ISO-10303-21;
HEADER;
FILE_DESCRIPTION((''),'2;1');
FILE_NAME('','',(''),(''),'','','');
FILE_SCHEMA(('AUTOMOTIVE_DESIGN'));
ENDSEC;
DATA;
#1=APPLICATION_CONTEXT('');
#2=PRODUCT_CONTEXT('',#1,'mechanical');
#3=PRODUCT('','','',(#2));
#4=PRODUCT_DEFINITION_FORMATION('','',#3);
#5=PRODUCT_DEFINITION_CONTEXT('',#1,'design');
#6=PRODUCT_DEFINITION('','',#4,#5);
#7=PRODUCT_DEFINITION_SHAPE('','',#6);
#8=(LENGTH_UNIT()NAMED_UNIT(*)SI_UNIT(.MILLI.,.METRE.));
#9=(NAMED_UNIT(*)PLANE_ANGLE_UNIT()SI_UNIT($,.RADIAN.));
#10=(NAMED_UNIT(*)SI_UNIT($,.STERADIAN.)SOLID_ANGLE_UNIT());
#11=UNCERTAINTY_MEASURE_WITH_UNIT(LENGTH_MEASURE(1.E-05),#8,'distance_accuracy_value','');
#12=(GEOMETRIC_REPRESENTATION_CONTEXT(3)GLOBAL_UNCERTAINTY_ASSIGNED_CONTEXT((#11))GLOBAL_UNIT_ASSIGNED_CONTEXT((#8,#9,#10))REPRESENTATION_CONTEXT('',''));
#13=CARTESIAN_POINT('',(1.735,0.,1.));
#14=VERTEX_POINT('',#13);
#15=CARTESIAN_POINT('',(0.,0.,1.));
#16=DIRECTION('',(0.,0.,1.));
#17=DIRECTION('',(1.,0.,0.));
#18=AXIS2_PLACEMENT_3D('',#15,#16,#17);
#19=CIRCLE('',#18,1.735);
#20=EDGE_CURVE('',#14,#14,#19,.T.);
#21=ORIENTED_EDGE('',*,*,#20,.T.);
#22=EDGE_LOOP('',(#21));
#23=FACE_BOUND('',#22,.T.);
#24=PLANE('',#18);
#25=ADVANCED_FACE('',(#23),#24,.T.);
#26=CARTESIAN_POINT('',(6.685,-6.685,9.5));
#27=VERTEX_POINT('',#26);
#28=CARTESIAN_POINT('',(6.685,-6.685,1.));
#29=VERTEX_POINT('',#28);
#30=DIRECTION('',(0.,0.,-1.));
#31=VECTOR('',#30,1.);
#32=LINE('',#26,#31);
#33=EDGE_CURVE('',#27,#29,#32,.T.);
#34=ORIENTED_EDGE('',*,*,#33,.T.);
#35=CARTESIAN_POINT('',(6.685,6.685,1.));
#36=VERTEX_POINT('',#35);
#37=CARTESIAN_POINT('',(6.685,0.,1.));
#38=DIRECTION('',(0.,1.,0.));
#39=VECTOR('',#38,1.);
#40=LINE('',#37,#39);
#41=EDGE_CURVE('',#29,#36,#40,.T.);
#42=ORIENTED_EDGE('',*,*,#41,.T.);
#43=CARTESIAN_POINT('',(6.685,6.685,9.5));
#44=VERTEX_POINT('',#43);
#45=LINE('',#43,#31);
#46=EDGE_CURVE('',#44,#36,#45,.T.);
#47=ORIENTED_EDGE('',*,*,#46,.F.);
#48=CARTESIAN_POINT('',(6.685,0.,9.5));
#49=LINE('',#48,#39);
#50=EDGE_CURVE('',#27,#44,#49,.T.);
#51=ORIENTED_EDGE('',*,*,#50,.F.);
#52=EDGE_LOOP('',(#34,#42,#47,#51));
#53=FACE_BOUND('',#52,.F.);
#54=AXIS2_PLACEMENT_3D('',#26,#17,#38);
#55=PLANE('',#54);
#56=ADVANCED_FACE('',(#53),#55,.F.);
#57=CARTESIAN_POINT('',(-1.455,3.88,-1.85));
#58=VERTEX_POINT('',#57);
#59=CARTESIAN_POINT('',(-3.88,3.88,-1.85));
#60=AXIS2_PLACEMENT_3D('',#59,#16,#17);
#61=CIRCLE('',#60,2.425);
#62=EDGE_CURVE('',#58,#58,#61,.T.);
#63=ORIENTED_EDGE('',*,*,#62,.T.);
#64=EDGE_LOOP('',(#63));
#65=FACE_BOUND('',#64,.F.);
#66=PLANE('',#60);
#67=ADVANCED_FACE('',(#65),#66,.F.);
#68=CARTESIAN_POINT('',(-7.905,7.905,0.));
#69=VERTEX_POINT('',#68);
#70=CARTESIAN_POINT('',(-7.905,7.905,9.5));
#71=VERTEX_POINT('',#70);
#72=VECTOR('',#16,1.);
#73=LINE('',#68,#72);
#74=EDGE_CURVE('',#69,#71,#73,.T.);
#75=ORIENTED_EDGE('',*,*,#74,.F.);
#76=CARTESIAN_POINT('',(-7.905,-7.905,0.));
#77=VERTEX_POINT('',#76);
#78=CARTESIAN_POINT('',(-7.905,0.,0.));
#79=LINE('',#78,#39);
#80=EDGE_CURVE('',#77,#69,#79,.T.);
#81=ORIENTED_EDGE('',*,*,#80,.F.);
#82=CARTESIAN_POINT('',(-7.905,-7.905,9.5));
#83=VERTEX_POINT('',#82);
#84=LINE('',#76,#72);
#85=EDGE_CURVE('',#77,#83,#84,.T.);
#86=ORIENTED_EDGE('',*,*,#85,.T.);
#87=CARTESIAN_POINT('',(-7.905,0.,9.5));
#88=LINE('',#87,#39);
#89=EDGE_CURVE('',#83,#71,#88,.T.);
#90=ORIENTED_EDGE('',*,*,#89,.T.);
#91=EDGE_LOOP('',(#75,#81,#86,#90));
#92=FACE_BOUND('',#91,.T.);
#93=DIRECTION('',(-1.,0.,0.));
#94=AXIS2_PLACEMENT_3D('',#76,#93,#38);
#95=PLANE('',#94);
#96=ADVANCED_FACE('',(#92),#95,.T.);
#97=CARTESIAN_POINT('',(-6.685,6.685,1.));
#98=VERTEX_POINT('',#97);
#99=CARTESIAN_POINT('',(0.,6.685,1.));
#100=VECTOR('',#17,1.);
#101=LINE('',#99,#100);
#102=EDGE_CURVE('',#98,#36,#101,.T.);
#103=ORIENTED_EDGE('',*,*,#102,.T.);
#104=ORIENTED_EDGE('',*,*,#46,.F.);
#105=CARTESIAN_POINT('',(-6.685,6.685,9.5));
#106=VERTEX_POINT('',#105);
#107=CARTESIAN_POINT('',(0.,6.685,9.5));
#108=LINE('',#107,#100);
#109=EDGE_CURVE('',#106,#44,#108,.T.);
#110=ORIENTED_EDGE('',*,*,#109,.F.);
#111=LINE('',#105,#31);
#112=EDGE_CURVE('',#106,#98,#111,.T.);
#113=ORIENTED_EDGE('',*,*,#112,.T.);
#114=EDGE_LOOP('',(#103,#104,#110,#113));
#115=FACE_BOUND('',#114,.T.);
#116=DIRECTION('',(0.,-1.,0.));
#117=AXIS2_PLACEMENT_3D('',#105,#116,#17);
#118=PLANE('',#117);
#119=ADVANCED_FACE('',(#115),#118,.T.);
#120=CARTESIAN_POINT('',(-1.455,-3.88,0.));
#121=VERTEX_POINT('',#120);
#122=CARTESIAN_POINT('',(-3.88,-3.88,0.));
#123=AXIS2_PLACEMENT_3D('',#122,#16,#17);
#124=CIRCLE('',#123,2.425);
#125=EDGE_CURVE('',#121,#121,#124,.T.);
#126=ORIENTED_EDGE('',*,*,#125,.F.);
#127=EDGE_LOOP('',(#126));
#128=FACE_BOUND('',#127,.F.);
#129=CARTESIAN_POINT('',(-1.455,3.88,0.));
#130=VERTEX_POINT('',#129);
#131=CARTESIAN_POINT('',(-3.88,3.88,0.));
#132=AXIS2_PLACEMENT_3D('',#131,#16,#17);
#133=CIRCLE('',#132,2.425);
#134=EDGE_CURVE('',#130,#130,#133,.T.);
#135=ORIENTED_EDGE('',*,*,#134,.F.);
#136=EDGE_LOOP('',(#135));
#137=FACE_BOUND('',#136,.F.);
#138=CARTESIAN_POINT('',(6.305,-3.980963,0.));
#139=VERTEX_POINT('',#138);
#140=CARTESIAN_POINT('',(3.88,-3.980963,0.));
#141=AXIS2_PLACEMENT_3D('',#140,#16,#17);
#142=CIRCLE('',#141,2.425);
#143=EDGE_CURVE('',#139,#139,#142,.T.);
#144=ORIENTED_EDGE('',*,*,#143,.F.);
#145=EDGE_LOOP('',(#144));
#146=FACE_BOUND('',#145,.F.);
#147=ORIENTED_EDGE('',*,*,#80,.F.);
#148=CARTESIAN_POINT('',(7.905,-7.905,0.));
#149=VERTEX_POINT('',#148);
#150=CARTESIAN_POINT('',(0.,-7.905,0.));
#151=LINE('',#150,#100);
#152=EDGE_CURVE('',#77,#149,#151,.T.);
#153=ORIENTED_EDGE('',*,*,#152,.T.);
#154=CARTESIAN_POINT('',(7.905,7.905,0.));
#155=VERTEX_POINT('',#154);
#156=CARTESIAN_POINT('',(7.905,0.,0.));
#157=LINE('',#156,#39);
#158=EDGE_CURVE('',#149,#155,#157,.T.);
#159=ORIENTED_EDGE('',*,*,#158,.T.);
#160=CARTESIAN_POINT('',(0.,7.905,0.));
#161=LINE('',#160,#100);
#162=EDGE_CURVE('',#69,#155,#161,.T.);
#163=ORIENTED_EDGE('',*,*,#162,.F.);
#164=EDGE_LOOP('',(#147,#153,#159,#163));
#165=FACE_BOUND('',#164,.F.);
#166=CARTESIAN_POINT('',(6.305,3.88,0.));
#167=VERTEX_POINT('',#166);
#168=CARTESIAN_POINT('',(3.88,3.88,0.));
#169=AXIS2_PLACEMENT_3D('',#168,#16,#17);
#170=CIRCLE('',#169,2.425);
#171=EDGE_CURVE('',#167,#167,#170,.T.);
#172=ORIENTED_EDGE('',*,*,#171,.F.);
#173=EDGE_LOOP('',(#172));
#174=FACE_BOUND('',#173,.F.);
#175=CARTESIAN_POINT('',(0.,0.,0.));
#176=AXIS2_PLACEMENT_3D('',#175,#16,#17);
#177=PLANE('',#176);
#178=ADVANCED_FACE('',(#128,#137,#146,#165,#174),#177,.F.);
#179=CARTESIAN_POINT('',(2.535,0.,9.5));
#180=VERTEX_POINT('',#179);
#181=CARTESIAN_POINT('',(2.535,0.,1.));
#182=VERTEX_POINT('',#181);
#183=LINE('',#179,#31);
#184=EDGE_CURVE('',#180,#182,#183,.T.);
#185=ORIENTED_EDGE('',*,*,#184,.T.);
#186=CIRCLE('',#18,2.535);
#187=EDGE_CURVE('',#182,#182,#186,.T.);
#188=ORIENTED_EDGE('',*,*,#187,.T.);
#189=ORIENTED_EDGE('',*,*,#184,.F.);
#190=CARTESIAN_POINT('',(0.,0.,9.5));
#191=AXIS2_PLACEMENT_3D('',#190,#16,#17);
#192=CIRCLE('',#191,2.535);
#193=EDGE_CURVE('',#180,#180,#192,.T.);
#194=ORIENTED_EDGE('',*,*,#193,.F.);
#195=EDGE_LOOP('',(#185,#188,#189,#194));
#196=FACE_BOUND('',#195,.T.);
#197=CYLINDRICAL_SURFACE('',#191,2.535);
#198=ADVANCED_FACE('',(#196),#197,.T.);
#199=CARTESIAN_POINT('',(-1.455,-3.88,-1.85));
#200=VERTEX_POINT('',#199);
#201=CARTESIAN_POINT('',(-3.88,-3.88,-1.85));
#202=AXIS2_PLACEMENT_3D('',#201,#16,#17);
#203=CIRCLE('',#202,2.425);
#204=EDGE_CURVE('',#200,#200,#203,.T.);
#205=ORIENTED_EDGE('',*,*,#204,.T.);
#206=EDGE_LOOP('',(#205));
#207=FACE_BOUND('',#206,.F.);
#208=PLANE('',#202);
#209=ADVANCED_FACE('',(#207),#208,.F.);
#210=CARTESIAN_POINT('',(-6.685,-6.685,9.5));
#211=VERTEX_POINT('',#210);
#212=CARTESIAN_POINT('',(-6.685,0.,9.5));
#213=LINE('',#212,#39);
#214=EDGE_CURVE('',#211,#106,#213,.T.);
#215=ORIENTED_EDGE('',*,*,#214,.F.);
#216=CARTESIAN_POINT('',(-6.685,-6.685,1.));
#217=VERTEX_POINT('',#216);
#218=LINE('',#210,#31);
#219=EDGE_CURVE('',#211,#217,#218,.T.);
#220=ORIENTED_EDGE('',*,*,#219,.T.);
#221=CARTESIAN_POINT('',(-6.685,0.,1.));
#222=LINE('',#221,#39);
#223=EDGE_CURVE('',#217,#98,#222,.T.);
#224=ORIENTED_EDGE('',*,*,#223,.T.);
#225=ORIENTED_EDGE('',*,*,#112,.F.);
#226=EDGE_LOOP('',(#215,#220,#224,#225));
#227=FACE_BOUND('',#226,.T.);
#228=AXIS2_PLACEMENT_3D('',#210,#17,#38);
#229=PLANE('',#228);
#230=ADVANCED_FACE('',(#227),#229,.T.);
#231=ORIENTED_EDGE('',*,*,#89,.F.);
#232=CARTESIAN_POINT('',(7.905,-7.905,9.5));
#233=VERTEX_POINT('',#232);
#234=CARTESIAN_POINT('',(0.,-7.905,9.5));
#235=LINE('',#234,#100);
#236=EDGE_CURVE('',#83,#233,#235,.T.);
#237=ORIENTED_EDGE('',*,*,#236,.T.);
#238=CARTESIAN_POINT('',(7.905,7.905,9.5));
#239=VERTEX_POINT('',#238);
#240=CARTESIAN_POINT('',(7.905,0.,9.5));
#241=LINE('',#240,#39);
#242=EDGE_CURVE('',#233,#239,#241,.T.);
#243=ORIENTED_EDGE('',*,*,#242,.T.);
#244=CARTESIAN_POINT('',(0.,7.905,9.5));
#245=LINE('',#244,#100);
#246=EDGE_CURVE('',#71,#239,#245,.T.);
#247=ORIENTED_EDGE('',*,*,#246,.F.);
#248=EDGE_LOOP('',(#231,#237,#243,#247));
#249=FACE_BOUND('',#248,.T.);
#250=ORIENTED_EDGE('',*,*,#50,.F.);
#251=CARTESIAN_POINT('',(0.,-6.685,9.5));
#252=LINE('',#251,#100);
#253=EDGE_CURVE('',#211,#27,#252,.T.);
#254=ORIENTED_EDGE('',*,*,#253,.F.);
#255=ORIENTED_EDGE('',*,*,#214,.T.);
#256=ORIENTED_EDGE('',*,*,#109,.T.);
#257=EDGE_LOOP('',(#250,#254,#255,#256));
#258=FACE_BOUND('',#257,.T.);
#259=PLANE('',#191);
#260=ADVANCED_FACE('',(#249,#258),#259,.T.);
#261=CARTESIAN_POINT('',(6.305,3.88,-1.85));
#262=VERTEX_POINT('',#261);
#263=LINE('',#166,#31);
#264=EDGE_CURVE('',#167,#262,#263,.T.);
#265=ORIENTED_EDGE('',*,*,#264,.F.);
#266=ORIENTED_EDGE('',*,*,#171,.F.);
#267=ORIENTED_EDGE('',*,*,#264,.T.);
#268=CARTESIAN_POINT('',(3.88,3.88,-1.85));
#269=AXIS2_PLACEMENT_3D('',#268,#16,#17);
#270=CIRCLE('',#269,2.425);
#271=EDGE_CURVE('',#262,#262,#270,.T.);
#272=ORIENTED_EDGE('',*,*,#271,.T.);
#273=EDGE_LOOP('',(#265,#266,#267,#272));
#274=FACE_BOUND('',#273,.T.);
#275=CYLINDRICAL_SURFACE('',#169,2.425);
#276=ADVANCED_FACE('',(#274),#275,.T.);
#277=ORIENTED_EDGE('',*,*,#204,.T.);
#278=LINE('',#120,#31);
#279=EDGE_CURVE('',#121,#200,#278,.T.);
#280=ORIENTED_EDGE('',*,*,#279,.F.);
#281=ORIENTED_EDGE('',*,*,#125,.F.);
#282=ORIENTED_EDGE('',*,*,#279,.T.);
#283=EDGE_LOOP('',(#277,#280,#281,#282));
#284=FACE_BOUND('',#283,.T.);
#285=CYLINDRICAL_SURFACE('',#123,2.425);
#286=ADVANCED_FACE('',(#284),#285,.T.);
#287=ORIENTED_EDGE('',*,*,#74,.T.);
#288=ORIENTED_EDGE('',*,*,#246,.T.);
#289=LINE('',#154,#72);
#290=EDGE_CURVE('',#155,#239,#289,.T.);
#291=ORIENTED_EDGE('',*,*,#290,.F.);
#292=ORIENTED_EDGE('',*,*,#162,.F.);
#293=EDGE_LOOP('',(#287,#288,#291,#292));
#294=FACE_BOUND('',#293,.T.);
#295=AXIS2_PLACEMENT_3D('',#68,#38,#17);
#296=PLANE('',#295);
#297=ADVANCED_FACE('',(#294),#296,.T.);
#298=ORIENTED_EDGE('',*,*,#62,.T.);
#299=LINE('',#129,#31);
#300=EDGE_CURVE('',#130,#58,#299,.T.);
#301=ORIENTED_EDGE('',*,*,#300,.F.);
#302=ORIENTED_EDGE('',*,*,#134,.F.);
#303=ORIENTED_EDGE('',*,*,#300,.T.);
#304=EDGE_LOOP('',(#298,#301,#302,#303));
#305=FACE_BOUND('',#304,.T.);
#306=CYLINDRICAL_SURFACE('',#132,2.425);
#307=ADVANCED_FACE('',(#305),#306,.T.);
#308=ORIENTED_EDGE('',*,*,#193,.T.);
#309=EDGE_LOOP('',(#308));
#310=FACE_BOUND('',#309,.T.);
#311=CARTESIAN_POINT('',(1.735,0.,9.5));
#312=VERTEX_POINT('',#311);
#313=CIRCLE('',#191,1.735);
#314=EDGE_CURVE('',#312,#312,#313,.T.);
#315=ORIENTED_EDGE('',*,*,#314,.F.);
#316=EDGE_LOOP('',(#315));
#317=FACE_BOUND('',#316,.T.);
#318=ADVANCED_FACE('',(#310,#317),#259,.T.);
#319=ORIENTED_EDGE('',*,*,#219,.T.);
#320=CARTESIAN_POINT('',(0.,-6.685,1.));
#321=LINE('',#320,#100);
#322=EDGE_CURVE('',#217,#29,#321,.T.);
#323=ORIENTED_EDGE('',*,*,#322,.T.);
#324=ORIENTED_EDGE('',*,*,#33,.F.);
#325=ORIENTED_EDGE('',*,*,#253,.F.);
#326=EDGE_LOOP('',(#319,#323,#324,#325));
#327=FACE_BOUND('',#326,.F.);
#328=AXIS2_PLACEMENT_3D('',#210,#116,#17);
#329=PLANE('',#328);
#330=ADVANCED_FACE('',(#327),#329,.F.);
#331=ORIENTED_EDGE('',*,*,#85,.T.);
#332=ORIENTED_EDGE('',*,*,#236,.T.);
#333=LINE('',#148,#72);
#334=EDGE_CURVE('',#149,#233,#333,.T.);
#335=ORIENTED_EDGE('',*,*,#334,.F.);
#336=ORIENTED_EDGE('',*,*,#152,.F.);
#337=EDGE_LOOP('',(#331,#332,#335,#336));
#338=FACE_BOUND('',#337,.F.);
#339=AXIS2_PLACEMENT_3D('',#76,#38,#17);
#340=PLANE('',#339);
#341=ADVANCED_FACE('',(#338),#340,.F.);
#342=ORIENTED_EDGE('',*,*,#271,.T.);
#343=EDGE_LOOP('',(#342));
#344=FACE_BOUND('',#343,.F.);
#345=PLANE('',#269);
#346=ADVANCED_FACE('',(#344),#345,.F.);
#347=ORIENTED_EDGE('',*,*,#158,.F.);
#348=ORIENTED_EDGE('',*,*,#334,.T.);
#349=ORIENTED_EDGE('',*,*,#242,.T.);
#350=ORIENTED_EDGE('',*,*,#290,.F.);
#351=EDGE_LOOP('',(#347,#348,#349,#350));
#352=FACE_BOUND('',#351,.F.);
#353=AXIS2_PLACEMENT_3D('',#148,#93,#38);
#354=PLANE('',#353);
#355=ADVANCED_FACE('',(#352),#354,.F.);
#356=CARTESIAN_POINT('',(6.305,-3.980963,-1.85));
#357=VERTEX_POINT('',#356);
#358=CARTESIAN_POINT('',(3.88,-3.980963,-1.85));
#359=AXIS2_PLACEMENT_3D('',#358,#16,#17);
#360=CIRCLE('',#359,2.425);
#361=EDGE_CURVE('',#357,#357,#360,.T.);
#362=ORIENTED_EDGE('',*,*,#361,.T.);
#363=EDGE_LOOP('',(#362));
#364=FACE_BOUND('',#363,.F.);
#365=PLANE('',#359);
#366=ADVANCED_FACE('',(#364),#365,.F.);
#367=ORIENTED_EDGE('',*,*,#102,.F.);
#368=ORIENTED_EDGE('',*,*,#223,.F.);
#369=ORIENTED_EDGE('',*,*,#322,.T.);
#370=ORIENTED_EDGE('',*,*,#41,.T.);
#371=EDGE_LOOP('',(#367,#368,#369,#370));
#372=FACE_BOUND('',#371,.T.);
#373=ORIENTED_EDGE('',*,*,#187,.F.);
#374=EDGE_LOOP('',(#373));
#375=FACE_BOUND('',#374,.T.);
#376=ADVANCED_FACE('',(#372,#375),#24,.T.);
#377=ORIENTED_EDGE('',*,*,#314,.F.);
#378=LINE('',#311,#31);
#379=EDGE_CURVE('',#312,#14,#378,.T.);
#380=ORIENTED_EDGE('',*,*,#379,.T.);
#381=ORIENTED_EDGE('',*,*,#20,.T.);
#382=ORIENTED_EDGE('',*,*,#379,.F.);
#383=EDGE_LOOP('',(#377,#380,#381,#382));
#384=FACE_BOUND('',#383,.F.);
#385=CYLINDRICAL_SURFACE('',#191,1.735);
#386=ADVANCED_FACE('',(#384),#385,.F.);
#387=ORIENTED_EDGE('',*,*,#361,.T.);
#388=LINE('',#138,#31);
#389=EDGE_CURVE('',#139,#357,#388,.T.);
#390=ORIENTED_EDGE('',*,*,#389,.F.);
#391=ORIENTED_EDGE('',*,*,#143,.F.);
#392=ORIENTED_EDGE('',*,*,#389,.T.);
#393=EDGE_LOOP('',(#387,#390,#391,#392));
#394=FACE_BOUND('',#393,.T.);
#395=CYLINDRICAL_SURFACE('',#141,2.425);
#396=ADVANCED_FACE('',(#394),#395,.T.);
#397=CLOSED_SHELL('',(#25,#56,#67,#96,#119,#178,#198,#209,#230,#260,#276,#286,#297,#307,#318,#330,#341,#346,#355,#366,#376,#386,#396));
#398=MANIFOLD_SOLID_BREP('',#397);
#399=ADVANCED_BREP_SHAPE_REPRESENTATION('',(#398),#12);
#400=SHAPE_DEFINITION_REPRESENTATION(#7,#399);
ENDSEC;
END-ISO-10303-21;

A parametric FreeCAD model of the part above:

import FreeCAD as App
import Part
import Sketcher
Q = App.Units.Quantity

doc = App.newDocument("Part")
params = doc.addObject("Spreadsheet::Sheet", "Params")
for row, (alias, value) in enumerate([
    ("sketch1_width", "15.81 mm"),
    ("pad1_length", "9.5 mm"),
    ("sketch2_diameter", "4.85 mm"),
    ("pad2_length", "1.85 mm"),
    ("sketch3_diameter", "5.07 mm"),
    ("sketch3_width", "13.37 mm"),
    ("pocket1_length", "8.5 mm"),
    ("sketch4_diameter", "3.47 mm"),
    ("pad3_length", "8.5 mm"),
    ("sketch5_diameter", "3.47 mm"),
    ("pocket2_length", "8.5 mm"),
], start=1):
    params.set(f"A{row}", alias)
    params.set(f"B{row}", "=" + value)
    params.setAlias(f"B{row}", alias)

body = doc.addObject("PartDesign::Body", "Body")

# Sketch on XY plane
sketch1 = body.newObject("Sketcher::SketchObject", "Sketch")
sketch1.AttachmentSupport = (doc.getObject("XY_Plane"), [""])
sketch1.MapMode = "FlatFace"
sketch1.addGeometry([
    Part.LineSegment(App.Vector(-8, 8, 0), App.Vector(-8, -8, 0)),
    Part.LineSegment(App.Vector(-8, -8, 0), App.Vector(8, -8, 0)),
    Part.LineSegment(App.Vector(8, -8, 0), App.Vector(8, 8, 0)),
    Part.LineSegment(App.Vector(8, 8, 0), App.Vector(-8, 8, 0)),
], False)
sketch1.addConstraint([
    Sketcher.Constraint("Coincident", 0, 2, 1, 1),
    Sketcher.Constraint("Coincident", 1, 2, 2, 1),
    Sketcher.Constraint("Coincident", 2, 2, 3, 1),
    Sketcher.Constraint("Coincident", 3, 2, 0, 1),
    Sketcher.Constraint("Vertical", 0),
    Sketcher.Constraint("Horizontal", 1),
    Sketcher.Constraint("Vertical", 2),
    Sketcher.Constraint("Horizontal", 3),
    Sketcher.Constraint("Symmetric", 0, 2, 2, 2, -1, 1),
    Sketcher.Constraint("Equal", 3, 0),
    Sketcher.Constraint("DistanceX", 1, 1, 1, 2, Q("15.81 mm")),
])
sketch1.setExpression("Constraints[10]", "Params.sketch1_width")
pad1 = body.newObject("PartDesign::Pad", "Pad")
pad1.Profile = sketch1
pad1.setExpression("Length", "Params.pad1_length")

# Sketch on XY plane
sketch2 = body.newObject("Sketcher::SketchObject", "Sketch001")
sketch2.AttachmentSupport = (doc.getObject("XY_Plane"), [""])
sketch2.MapMode = "FlatFace"
sketch2.addGeometry([
    Part.Circle(App.Vector(-3.9, -3.9, 0), App.Vector(0, 0, 1), 2.4),
    Part.Circle(App.Vector(3.9, -4, 0), App.Vector(0, 0, 1), 2.4),
    Part.Circle(App.Vector(3.9, 3.9, 0), App.Vector(0, 0, 1), 2.4),
    Part.Circle(App.Vector(-3.9, 3.9, 0), App.Vector(0, 0, 1), 2.4),
], False)
sketch2.addConstraint([
    Sketcher.Constraint("Equal", 0, 1),
    Sketcher.Constraint("Equal", 1, 2),
    Sketcher.Constraint("Equal", 2, 3),
    Sketcher.Constraint("Symmetric", 0, 3, 2, 3, -1, 1),
    Sketcher.Constraint("Symmetric", 2, 3, 3, 3, -2),
    Sketcher.Constraint("Vertical", 1, 3, 2, 3),
    Sketcher.Constraint("Diameter", 0, Q("4.85 mm")),
    Sketcher.Constraint("DistanceX", 0, 3, -1, 1, Q("3.88 mm")),
    Sketcher.Constraint("DistanceY", 0, 3, -1, 1, Q("3.88 mm")),
    Sketcher.Constraint("DistanceY", 1, 3, -1, 1, Q("3.980963 mm")),
])
sketch2.setExpression("Constraints[6]", "Params.sketch2_diameter")
pad2 = body.newObject("PartDesign::Pad", "Pad001")
pad2.Profile = sketch2
pad2.setExpression("Length", "Params.pad2_length")
pad2.Reversed = True

# Sketch on XY plane
sketch3 = body.newObject("Sketcher::SketchObject", "Sketch002")
sketch3.AttachmentSupport = (doc.getObject("XY_Plane"), [""])
sketch3.MapMode = "FlatFace"
sketch3.AttachmentOffset = App.Placement(App.Vector(0, 0, 9.5), App.Rotation())
sketch3.addGeometry([
    Part.LineSegment(App.Vector(-6.7, 6.7, 0), App.Vector(-6.7, -6.7, 0)),  # 0
    Part.LineSegment(App.Vector(-6.7, -6.7, 0), App.Vector(6.7, -6.7, 0)),  # 1
    Part.LineSegment(App.Vector(6.7, -6.7, 0), App.Vector(6.7, 6.7, 0)),  # 2
    Part.LineSegment(App.Vector(6.7, 6.7, 0), App.Vector(-6.7, 6.7, 0)),  # 3
    Part.Circle(App.Vector(0, 0, 0), App.Vector(0, 0, 1), 2.5),  # 4
], False)
sketch3.addConstraint([
    Sketcher.Constraint("Coincident", 0, 2, 1, 1),
    Sketcher.Constraint("Coincident", 1, 2, 2, 1),
    Sketcher.Constraint("Coincident", 2, 2, 3, 1),
    Sketcher.Constraint("Coincident", 3, 2, 0, 1),
    Sketcher.Constraint("Vertical", 0),
    Sketcher.Constraint("Horizontal", 1),
    Sketcher.Constraint("Vertical", 2),
    Sketcher.Constraint("Horizontal", 3),
    Sketcher.Constraint("Coincident", 4, 3, -1, 1),
    Sketcher.Constraint("Symmetric", 0, 2, 2, 2, -1, 1),
    Sketcher.Constraint("Equal", 3, 0),
    Sketcher.Constraint("Diameter", 4, Q("5.07 mm")),
    Sketcher.Constraint("DistanceX", 1, 1, 1, 2, Q("13.37 mm")),
])
sketch3.setExpression("Constraints[11]", "Params.sketch3_diameter")
sketch3.setExpression("Constraints[12]", "Params.sketch3_width")
pocket1 = body.newObject("PartDesign::Pocket", "Pocket")
pocket1.Profile = sketch3
pocket1.setExpression("Length", "Params.pocket1_length")

# Sketch on XY plane
sketch4 = body.newObject("Sketcher::SketchObject", "Sketch003")
sketch4.AttachmentSupport = (doc.getObject("XY_Plane"), [""])
sketch4.MapMode = "FlatFace"
sketch4.AttachmentOffset = App.Placement(App.Vector(0, 0, 9.5), App.Rotation())
sketch4.addGeometry(Part.Circle(App.Vector(0, 0, 0), App.Vector(0, 0, 1), 1.7), False)
sketch4.addConstraint([
    Sketcher.Constraint("Coincident", 0, 3, -1, 1),
    Sketcher.Constraint("Diameter", 0, Q("3.47 mm")),
])
sketch4.setExpression("Constraints[1]", "Params.sketch4_diameter")
pad3 = body.newObject("PartDesign::Pad", "Pad002")
pad3.Profile = sketch4
pad3.setExpression("Length", "Params.pad3_length")
pad3.Reversed = True

# Sketch on XY plane
sketch5 = body.newObject("Sketcher::SketchObject", "Sketch004")
sketch5.AttachmentSupport = (doc.getObject("XY_Plane"), [""])
sketch5.MapMode = "FlatFace"
sketch5.AttachmentOffset = App.Placement(App.Vector(0, 0, 9.5), App.Rotation())
sketch5.addGeometry(Part.Circle(App.Vector(0, 0, 0), App.Vector(0, 0, 1), 1.7), False)
sketch5.addConstraint([
    Sketcher.Constraint("Coincident", 0, 3, -1, 1),
    Sketcher.Constraint("Diameter", 0, Q("3.47 mm")),
])
sketch5.setExpression("Constraints[1]", "Params.sketch5_diameter")
pocket2 = body.newObject("PartDesign::Pocket", "Pocket001")
pocket2.Profile = sketch5
pocket2.setExpression("Length", "Params.pocket2_length")

doc.recompute()
